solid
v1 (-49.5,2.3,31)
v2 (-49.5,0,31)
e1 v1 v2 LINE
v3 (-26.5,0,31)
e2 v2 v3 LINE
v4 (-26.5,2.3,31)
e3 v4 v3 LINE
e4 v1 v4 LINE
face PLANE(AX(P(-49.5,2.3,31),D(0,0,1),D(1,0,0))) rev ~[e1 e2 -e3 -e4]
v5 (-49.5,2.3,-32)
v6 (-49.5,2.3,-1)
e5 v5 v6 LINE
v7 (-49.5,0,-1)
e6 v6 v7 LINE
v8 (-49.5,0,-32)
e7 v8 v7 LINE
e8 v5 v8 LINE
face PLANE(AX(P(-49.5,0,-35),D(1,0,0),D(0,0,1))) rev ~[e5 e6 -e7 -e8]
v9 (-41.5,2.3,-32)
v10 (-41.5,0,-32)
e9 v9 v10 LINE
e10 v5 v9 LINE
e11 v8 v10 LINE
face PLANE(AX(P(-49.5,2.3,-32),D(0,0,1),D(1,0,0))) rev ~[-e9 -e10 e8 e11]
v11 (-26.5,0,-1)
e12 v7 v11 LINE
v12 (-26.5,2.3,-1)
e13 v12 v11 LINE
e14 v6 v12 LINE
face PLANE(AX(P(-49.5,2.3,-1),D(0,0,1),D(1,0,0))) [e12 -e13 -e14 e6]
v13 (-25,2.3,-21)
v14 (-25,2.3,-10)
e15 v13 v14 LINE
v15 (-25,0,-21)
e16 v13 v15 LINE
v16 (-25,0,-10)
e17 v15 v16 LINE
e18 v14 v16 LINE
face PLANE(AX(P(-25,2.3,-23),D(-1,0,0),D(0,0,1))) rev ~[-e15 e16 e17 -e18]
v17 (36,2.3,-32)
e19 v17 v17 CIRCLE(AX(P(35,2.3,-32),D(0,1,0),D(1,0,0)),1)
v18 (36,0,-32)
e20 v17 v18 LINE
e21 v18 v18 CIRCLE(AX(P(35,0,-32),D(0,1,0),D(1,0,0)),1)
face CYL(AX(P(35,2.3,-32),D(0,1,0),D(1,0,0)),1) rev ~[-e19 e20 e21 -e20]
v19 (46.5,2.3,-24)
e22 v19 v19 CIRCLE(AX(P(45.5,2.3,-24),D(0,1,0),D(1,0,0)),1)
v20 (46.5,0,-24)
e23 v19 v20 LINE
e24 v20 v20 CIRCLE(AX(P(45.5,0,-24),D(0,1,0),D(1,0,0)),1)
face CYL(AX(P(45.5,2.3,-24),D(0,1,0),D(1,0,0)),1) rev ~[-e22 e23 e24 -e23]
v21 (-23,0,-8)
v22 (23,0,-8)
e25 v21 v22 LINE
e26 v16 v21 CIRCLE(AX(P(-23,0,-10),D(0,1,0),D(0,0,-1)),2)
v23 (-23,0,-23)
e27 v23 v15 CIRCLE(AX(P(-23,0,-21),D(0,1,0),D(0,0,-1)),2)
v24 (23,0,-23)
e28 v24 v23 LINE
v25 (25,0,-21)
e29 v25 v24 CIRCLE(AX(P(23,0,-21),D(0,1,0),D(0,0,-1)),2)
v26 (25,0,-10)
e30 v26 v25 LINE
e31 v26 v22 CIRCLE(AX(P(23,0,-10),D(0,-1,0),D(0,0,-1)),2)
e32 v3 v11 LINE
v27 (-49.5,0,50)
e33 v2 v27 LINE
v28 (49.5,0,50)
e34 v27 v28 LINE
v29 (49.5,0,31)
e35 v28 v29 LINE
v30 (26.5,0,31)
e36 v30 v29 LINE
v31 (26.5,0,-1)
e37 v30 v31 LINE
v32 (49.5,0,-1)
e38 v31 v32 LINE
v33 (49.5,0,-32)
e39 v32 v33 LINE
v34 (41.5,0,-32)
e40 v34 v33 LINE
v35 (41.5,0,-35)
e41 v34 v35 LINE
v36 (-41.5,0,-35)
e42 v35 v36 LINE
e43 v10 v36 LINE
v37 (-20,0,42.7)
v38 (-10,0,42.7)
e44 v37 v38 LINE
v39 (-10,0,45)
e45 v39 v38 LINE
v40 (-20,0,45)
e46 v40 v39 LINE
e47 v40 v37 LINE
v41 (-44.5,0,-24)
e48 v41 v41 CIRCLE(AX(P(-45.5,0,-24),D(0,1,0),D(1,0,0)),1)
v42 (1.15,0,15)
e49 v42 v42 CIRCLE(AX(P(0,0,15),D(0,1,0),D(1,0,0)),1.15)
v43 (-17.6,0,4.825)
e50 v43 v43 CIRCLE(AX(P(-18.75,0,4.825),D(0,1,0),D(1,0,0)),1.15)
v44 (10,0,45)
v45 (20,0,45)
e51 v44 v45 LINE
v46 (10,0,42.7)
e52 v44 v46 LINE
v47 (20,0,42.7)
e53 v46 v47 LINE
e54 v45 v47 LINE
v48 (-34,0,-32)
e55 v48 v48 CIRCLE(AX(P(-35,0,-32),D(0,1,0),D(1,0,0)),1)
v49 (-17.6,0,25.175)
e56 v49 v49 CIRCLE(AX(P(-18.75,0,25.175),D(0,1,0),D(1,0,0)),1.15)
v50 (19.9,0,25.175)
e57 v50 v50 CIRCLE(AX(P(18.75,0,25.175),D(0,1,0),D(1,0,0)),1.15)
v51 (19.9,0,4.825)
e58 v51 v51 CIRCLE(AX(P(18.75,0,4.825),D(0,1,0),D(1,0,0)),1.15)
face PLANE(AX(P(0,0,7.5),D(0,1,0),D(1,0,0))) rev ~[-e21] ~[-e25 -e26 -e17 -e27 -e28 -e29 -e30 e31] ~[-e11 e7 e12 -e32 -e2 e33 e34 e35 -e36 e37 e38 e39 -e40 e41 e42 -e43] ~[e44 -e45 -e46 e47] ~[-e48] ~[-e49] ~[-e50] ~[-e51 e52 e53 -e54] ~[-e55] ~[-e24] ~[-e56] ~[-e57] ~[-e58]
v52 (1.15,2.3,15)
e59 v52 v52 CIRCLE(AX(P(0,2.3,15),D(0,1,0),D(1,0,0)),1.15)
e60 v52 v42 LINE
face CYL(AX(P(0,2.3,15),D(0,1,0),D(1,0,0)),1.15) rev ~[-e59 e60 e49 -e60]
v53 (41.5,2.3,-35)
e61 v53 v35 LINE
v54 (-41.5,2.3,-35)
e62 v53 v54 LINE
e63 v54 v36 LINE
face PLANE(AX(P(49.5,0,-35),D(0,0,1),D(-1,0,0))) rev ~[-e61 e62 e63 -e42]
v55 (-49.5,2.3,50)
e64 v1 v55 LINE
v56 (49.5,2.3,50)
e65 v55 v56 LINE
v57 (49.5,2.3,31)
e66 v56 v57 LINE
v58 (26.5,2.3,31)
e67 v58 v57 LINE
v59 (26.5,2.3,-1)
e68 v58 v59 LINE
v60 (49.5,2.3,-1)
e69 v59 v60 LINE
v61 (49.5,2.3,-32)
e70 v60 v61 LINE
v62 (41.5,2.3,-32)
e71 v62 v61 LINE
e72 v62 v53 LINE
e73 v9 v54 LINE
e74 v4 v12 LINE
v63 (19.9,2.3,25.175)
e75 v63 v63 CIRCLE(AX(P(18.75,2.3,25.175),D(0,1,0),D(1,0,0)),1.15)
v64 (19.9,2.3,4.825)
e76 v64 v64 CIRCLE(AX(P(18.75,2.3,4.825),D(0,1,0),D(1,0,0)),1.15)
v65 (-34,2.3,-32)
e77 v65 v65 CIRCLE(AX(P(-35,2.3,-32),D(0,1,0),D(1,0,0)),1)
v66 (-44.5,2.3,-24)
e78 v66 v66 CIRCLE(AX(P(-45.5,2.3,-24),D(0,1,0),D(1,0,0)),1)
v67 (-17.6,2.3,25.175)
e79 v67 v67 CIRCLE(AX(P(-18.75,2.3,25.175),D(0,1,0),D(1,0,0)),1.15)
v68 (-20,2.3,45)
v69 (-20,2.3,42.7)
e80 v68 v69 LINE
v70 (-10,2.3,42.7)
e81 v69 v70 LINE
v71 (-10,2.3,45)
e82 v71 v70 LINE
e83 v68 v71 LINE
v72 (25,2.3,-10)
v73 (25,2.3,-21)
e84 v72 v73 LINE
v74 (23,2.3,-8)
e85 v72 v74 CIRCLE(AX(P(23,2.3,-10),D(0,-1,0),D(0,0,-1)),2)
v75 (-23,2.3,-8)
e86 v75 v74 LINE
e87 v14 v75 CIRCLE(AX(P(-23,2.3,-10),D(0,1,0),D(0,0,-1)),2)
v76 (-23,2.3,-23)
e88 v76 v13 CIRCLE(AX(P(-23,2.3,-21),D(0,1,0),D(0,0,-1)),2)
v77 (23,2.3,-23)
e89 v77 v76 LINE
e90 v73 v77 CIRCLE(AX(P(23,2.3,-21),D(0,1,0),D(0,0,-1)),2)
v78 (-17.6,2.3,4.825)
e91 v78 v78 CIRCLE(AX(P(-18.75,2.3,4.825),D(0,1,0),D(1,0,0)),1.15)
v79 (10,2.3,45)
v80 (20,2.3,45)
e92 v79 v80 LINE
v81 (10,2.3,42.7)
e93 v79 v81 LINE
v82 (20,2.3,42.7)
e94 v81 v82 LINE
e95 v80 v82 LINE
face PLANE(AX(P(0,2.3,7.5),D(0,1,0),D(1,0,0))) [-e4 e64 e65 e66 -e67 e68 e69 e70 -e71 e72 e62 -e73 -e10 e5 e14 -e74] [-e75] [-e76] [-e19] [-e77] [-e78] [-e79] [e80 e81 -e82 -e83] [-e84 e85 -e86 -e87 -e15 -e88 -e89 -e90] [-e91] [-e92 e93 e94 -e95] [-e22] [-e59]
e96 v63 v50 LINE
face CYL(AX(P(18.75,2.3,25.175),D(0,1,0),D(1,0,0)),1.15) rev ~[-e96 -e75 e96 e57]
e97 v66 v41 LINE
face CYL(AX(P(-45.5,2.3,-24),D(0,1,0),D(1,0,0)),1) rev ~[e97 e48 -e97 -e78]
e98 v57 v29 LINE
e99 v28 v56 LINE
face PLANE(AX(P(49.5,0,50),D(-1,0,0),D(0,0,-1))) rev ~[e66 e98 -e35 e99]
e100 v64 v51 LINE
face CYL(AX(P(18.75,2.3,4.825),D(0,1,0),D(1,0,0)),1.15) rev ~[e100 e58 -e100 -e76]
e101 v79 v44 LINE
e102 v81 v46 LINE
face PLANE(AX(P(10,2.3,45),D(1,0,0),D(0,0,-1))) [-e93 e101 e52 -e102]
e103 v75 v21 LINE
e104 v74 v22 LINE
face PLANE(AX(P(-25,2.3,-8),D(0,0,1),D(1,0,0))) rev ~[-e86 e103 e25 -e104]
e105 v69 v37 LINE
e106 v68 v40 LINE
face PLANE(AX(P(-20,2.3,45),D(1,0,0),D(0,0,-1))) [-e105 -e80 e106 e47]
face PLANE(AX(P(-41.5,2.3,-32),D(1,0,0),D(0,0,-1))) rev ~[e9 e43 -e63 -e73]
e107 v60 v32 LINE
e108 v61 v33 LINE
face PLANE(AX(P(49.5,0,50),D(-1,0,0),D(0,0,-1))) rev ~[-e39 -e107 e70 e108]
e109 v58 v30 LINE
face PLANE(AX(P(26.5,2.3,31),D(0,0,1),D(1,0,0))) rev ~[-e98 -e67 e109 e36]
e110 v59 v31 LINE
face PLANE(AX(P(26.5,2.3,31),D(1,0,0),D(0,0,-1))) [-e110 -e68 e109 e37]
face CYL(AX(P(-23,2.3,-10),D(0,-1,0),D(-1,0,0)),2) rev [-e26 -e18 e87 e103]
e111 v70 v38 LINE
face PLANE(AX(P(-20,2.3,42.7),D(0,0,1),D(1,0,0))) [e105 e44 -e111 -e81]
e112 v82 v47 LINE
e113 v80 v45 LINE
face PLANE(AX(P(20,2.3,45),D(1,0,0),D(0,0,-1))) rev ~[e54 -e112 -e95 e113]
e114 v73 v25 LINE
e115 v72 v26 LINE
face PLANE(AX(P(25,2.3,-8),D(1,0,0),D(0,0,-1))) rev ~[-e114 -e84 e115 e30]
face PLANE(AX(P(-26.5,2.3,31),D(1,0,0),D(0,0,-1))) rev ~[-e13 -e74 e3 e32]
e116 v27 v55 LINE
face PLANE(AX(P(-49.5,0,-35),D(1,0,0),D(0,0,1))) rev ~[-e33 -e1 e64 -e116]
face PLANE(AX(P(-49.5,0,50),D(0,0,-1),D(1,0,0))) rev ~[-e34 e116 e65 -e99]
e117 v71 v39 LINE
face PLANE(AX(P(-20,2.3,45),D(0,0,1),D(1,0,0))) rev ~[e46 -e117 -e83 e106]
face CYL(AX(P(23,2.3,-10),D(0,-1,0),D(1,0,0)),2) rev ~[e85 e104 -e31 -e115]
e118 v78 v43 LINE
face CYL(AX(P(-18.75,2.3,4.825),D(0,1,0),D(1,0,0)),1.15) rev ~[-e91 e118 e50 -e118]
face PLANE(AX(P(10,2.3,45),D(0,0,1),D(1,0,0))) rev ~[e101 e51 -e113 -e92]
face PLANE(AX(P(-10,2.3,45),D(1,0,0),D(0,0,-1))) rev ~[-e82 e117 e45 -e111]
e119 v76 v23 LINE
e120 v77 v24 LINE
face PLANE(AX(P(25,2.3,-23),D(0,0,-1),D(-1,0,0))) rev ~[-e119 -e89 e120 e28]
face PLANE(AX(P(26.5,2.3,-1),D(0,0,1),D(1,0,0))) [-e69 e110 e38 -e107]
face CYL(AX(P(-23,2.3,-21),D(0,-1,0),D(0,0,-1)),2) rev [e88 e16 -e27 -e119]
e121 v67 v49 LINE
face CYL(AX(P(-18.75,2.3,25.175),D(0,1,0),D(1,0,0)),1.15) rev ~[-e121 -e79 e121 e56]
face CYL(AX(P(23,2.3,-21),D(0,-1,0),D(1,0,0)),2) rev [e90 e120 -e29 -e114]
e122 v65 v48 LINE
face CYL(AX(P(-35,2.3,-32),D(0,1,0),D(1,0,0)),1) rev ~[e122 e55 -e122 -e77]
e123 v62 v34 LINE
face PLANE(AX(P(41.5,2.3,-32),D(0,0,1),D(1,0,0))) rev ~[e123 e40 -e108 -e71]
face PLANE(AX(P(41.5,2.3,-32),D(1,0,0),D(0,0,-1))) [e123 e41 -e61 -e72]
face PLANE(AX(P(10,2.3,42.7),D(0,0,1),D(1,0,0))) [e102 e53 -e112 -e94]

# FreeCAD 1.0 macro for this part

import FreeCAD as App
import Part
import Sketcher
from FreeCAD import Vector


def edges_at(feature, points):
    """Names of the edges that pass closest to the given points."""
    edges = feature.Shape.Edges
    near = lambda p: min(range(len(edges)), key=lambda i: edges[i].distToShape(Part.Vertex(*p))[0])
    return sorted({f"Edge{near(p) + 1}" for p in points})


def add_polygon(sketch, points):
    """Adds a closed chain of lines whose ends are joined by coincident constraints."""
    first, n = sketch.GeometryCount, len(points)
    for a, b in zip(points, points[1:] + points[:1]):
        sketch.addGeometry(Part.LineSegment(App.Vector(*a, 0), App.Vector(*b, 0)), False)
    for i in range(n):
        sketch.addConstraint(Sketcher.Constraint("Coincident", first + i, 2, first + (i + 1) % n, 1))

doc = App.newDocument("Part")
body = doc.addObject("PartDesign::Body", "Body")

# Sketch on XZ plane
sketch1 = doc.addObject("Sketcher::SketchObject", "Sketch")
body.addObject(sketch1)
sketch1.AttachmentSupport = (doc.XZ_Plane, [""])
sketch1.MapMode = "FlatFace"
add_polygon(sketch1, [(-49.5, -35), (-49.5, 50), (49.5, 50), (49.5, -35)])  # lines 0-3
sketch1.addConstraint(Sketcher.Constraint("Vertical", 0))
sketch1.addConstraint(Sketcher.Constraint("Horizontal", 1))
sketch1.addConstraint(Sketcher.Constraint("Vertical", 2))
sketch1.addConstraint(Sketcher.Constraint("Horizontal", 3))
sketch1.addConstraint(Sketcher.Constraint("DistanceX", 1, 1, 1, 2, 99.0))
sketch1.addConstraint(Sketcher.Constraint("DistanceY", 0, 1, 0, 2, 85.0))
sketch1.addConstraint(Sketcher.Constraint("DistanceY", -1, 1, 0, 2, 50.0))
sketch1.addConstraint(Sketcher.Constraint("DistanceX", 0, 2, -1, 1, 49.5))
pad1 = doc.addObject("PartDesign::Pad", "Pad")
body.addObject(pad1)
pad1.Profile = sketch1
pad1.Length = 2.3
pad1.Reversed = True

# Sketch on XZ plane
sketch2 = doc.addObject("Sketcher::SketchObject", "Sketch001")
body.addObject(sketch2)
sketch2.AttachmentSupport = (doc.XZ_Plane, [""])
sketch2.MapMode = "FlatFace"
sketch2.AttachmentOffset = App.Placement(Vector(0, 0, -2.3), App.Rotation())
add_polygon(sketch2, [(-49.5, -35), (-49.5, -32), (-41.5, -32), (-41.5, -35)])  # lines 0-3
add_polygon(sketch2, [(41.5, -35), (41.5, -32), (49.5, -32), (49.5, -35)])  # lines 4-7
add_polygon(sketch2, [(26.5, -1), (26.5, 31), (49.5, 31), (49.5, -1)])  # lines 8-11
add_polygon(sketch2, [(-49.5, -1), (-49.5, 31), (-26.5, 31), (-26.5, -1)])  # lines 12-15
sketch2.addConstraint(Sketcher.Constraint("Vertical", 0))
sketch2.addConstraint(Sketcher.Constraint("Horizontal", 1))
sketch2.addConstraint(Sketcher.Constraint("Vertical", 2))
sketch2.addConstraint(Sketcher.Constraint("Horizontal", 3))
sketch2.addConstraint(Sketcher.Constraint("Vertical", 4))
sketch2.addConstraint(Sketcher.Constraint("Horizontal", 5))
sketch2.addConstraint(Sketcher.Constraint("Vertical", 6))
sketch2.addConstraint(Sketcher.Constraint("Horizontal", 7))
sketch2.addConstraint(Sketcher.Constraint("Vertical", 8))
sketch2.addConstraint(Sketcher.Constraint("Horizontal", 9))
sketch2.addConstraint(Sketcher.Constraint("Vertical", 10))
sketch2.addConstraint(Sketcher.Constraint("Horizontal", 11))
sketch2.addConstraint(Sketcher.Constraint("Vertical", 12))
sketch2.addConstraint(Sketcher.Constraint("Horizontal", 13))
sketch2.addConstraint(Sketcher.Constraint("Vertical", 14))
sketch2.addConstraint(Sketcher.Constraint("Horizontal", 15))
sketch2.addConstraint(Sketcher.Constraint("Symmetric", 1, 2, 4, 2, -2))
sketch2.addConstraint(Sketcher.Constraint("Symmetric", 3, 2, 6, 2, -2))
sketch2.addConstraint(Sketcher.Constraint("Symmetric", 9, 2, 12, 2, -2))
sketch2.addConstraint(Sketcher.Constraint("Symmetric", 11, 2, 14, 2, -2))
sketch2.addConstraint(Sketcher.Constraint("Vertical", 6, 2, 9, 2))
sketch2.addConstraint(Sketcher.Constraint("DistanceX", 1, 1, 1, 2, 8.0))
sketch2.addConstraint(Sketcher.Constraint("DistanceX", 9, 1, 9, 2, 23.0))
sketch2.addConstraint(Sketcher.Constraint("DistanceY", 0, 1, 0, 2, 3.0))
sketch2.addConstraint(Sketcher.Constraint("DistanceY", 8, 1, 8, 2, 32.0))
sketch2.addConstraint(Sketcher.Constraint("DistanceY", 0, 2, -1, 1, 32.0))
sketch2.addConstraint(Sketcher.Constraint("DistanceY", -1, 1, 8, 2, 31.0))
sketch2.addConstraint(Sketcher.Constraint("DistanceX", 1, 2, 4, 2, 83.0))
pocket1 = doc.addObject("PartDesign::Pocket", "Pocket")
body.addObject(pocket1)
pocket1.Profile = sketch2
pocket1.Type = "ThroughAll"
pocket1.Reversed = True

# Sketch on XZ plane
sketch3 = doc.addObject("Sketcher::SketchObject", "Sketch002")
body.addObject(sketch3)
sketch3.AttachmentSupport = (doc.XZ_Plane, [""])
sketch3.MapMode = "FlatFace"
sketch3.AttachmentOffset = App.Placement(Vector(0, 0, -2.3), App.Rotation())
sketch3.addGeometry(Part.Circle(Vector(-45.5, -24, 0), Vector(0, 0, 1), 1), False)
sketch3.addGeometry(Part.Circle(Vector(45.5, -24, 0), Vector(0, 0, 1), 1), False)
sketch3.addConstraint(Sketcher.Constraint("Equal", 0, 1))
sketch3.addConstraint(Sketcher.Constraint("Symmetric", 0, 3, 1, 3, -2))
sketch3.addConstraint(Sketcher.Constraint("Diameter", 0, 2.0))
sketch3.addConstraint(Sketcher.Constraint("DistanceY", 0, 3, -1, 1, 24.0))
sketch3.addConstraint(Sketcher.Constraint("DistanceX", 0, 3, 1, 3, 91.0))
pocket2 = doc.addObject("PartDesign::Pocket", "Pocket001")
body.addObject(pocket2)
pocket2.Profile = sketch3
pocket2.Type = "ThroughAll"
pocket2.Reversed = True

# Sketch on XZ plane
sketch4 = doc.addObject("Sketcher::SketchObject", "Sketch003")
body.addObject(sketch4)
sketch4.AttachmentSupport = (doc.XZ_Plane, [""])
sketch4.MapMode = "FlatFace"
sketch4.AttachmentOffset = App.Placement(Vector(0, 0, -2.3), App.Rotation())
sketch4.addGeometry(Part.Circle(Vector(0, 15, 0), Vector(0, 0, 1), 1.15), False)
sketch4.addGeometry(Part.Circle(Vector(-18.75, 4.825, 0), Vector(0, 0, 1), 1.15), False)
sketch4.addGeometry(Part.Circle(Vector(-18.75, 25.175, 0), Vector(0, 0, 1), 1.15), False)
sketch4.addGeometry(Part.Circle(Vector(18.75, 4.825, 0), Vector(0, 0, 1), 1.15), False)
sketch4.addGeometry(Part.Circle(Vector(18.75, 25.175, 0), Vector(0, 0, 1), 1.15), False)
sketch4.addConstraint(Sketcher.Constraint("Equal", 0, 1))
sketch4.addConstraint(Sketcher.Constraint("Equal", 1, 2))
sketch4.addConstraint(Sketcher.Constraint("Equal", 2, 3))
sketch4.addConstraint(Sketcher.Constraint("Equal", 3, 4))
sketch4.addConstraint(Sketcher.Constraint("Symmetric", 1, 3, 3, 3, -2))
sketch4.addConstraint(Sketcher.Constraint("Symmetric", 2, 3, 4, 3, -2))
sketch4.addConstraint(Sketcher.Constraint("PointOnObject", 0, 3, -2))
sketch4.addConstraint(Sketcher.Constraint("Vertical", 1, 3, 2, 3))
sketch4.addConstraint(Sketcher.Constraint("Diameter", 0, 2.3))
sketch4.addConstraint(Sketcher.Constraint("DistanceY", -1, 1, 0, 3, 15.0))
sketch4.addConstraint(Sketcher.Constraint("DistanceX", 1, 3, 3, 3, 37.5))
sketch4.addConstraint(Sketcher.Constraint("DistanceY", 1, 3, 2, 3, 20.35))
sketch4.addConstraint(Sketcher.Constraint("DistanceY", -1, 1, 1, 3, 4.825))
pocket3 = doc.addObject("PartDesign::Pocket", "Pocket002")
body.addObject(pocket3)
pocket3.Profile = sketch4
pocket3.Type = "ThroughAll"
pocket3.Reversed = True

# Sketch on XZ plane
sketch5 = doc.addObject("Sketcher::SketchObject", "Sketch004")
body.addObject(sketch5)
sketch5.AttachmentSupport = (doc.XZ_Plane, [""])
sketch5.MapMode = "FlatFace"
sketch5.AttachmentOffset = App.Placement(Vector(0, 0, -2.3), App.Rotation())
sketch5.addGeometry(Part.Circle(Vector(-35, -32, 0), Vector(0, 0, 1), 1), False)
sketch5.addGeometry(Part.Circle(Vector(35, -32, 0), Vector(0, 0, 1), 1), False)
sketch5.addConstraint(Sketcher.Constraint("Equal", 0, 1))
sketch5.addConstraint(Sketcher.Constraint("Symmetric", 0, 3, 1, 3, -2))
sketch5.addConstraint(Sketcher.Constraint("Diameter", 0, 2.0))
sketch5.addConstraint(Sketcher.Constraint("DistanceX", 0, 3, -1, 1, 35.0))
sketch5.addConstraint(Sketcher.Constraint("DistanceY", 0, 3, -1, 1, 32.0))
pocket4 = doc.addObject("PartDesign::Pocket", "Pocket003")
body.addObject(pocket4)
pocket4.Profile = sketch5
pocket4.Type = "ThroughAll"
pocket4.Reversed = True

# Sketch on XZ plane
sketch6 = doc.addObject("Sketcher::SketchObject", "Sketch005")
body.addObject(sketch6)
sketch6.AttachmentSupport = (doc.XZ_Plane, [""])
sketch6.MapMode = "FlatFace"
sketch6.AttachmentOffset = App.Placement(Vector(0, 0, -2.3), App.Rotation())
add_polygon(sketch6, [(-20, 42.7), (-20, 45), (-10, 45), (-10, 42.7)])  # lines 0-3
add_polygon(sketch6, [(10, 42.7), (10, 45), (20, 45), (20, 42.7)])  # lines 4-7
sketch6.addConstraint(Sketcher.Constraint("Vertical", 0))
sketch6.addConstraint(Sketcher.Constraint("Horizontal", 1))
sketch6.addConstraint(Sketcher.Constraint("Vertical", 2))
sketch6.addConstraint(Sketcher.Constraint("Horizontal", 3))
sketch6.addConstraint(Sketcher.Constraint("Vertical", 4))
sketch6.addConstraint(Sketcher.Constraint("Horizontal", 5))
sketch6.addConstraint(Sketcher.Constraint("Vertical", 6))
sketch6.addConstraint(Sketcher.Constraint("Horizontal", 7))
sketch6.addConstraint(Sketcher.Constraint("Symmetric", 1, 2, 4, 2, -2))
sketch6.addConstraint(Sketcher.Constraint("Symmetric", 3, 2, 6, 2, -2))
sketch6.addConstraint(Sketcher.Constraint("DistanceX", 1, 1, 1, 2, 10.0))
sketch6.addConstraint(Sketcher.Constraint("DistanceY", 0, 1, 0, 2, 2.3))
sketch6.addConstraint(Sketcher.Constraint("DistanceX", 0, 2, -1, 1, 20.0))
sketch6.addConstraint(Sketcher.Constraint("DistanceY", -1, 1, 0, 2, 45.0))
pocket5 = doc.addObject("PartDesign::Pocket", "Pocket004")
body.addObject(pocket5)
pocket5.Profile = sketch6
pocket5.Length = 2.3
pocket5.Reversed = True

# Sketch on XZ plane
sketch7 = doc.addObject("Sketcher::SketchObject", "Sketch006")
body.addObject(sketch7)
sketch7.AttachmentSupport = (doc.XZ_Plane, [""])
sketch7.MapMode = "FlatFace"
sketch7.AttachmentOffset = App.Placement(Vector(0, 0, -2.3), App.Rotation())
add_polygon(sketch7, [(25, -8), (25, -23), (-25, -23), (-25, -8)])  # lines 0-3
sketch7.addConstraint(Sketcher.Constraint("Vertical", 0))
sketch7.addConstraint(Sketcher.Constraint("Horizontal", 1))
sketch7.addConstraint(Sketcher.Constraint("Vertical", 2))
sketch7.addConstraint(Sketcher.Constraint("Horizontal", 3))
sketch7.addConstraint(Sketcher.Constraint("DistanceX", 1, 2, 1, 1, 50.0))
sketch7.addConstraint(Sketcher.Constraint("DistanceY", 0, 2, 0, 1, 15.0))
sketch7.addConstraint(Sketcher.Constraint("DistanceX", -1, 1, 0, 2, 25.0))
sketch7.addConstraint(Sketcher.Constraint("DistanceY", 0, 2, -1, 1, 23.0))
pocket6 = doc.addObject("PartDesign::Pocket", "Pocket005")
body.addObject(pocket6)
pocket6.Profile = sketch7
pocket6.Length = 2.3
pocket6.Reversed = True
doc.recompute()

fillet = doc.addObject("PartDesign::Fillet", "Fillet")
body.addObject(fillet)
fillet.Base = (pocket6, edges_at(pocket6, [
    (-25, 1.15, -8),
    (-25, 1.15, -23),
    (25, 1.15, -23),
    (25, 1.15, -8),
]))
fillet.Radius = 2

doc.recompute()
